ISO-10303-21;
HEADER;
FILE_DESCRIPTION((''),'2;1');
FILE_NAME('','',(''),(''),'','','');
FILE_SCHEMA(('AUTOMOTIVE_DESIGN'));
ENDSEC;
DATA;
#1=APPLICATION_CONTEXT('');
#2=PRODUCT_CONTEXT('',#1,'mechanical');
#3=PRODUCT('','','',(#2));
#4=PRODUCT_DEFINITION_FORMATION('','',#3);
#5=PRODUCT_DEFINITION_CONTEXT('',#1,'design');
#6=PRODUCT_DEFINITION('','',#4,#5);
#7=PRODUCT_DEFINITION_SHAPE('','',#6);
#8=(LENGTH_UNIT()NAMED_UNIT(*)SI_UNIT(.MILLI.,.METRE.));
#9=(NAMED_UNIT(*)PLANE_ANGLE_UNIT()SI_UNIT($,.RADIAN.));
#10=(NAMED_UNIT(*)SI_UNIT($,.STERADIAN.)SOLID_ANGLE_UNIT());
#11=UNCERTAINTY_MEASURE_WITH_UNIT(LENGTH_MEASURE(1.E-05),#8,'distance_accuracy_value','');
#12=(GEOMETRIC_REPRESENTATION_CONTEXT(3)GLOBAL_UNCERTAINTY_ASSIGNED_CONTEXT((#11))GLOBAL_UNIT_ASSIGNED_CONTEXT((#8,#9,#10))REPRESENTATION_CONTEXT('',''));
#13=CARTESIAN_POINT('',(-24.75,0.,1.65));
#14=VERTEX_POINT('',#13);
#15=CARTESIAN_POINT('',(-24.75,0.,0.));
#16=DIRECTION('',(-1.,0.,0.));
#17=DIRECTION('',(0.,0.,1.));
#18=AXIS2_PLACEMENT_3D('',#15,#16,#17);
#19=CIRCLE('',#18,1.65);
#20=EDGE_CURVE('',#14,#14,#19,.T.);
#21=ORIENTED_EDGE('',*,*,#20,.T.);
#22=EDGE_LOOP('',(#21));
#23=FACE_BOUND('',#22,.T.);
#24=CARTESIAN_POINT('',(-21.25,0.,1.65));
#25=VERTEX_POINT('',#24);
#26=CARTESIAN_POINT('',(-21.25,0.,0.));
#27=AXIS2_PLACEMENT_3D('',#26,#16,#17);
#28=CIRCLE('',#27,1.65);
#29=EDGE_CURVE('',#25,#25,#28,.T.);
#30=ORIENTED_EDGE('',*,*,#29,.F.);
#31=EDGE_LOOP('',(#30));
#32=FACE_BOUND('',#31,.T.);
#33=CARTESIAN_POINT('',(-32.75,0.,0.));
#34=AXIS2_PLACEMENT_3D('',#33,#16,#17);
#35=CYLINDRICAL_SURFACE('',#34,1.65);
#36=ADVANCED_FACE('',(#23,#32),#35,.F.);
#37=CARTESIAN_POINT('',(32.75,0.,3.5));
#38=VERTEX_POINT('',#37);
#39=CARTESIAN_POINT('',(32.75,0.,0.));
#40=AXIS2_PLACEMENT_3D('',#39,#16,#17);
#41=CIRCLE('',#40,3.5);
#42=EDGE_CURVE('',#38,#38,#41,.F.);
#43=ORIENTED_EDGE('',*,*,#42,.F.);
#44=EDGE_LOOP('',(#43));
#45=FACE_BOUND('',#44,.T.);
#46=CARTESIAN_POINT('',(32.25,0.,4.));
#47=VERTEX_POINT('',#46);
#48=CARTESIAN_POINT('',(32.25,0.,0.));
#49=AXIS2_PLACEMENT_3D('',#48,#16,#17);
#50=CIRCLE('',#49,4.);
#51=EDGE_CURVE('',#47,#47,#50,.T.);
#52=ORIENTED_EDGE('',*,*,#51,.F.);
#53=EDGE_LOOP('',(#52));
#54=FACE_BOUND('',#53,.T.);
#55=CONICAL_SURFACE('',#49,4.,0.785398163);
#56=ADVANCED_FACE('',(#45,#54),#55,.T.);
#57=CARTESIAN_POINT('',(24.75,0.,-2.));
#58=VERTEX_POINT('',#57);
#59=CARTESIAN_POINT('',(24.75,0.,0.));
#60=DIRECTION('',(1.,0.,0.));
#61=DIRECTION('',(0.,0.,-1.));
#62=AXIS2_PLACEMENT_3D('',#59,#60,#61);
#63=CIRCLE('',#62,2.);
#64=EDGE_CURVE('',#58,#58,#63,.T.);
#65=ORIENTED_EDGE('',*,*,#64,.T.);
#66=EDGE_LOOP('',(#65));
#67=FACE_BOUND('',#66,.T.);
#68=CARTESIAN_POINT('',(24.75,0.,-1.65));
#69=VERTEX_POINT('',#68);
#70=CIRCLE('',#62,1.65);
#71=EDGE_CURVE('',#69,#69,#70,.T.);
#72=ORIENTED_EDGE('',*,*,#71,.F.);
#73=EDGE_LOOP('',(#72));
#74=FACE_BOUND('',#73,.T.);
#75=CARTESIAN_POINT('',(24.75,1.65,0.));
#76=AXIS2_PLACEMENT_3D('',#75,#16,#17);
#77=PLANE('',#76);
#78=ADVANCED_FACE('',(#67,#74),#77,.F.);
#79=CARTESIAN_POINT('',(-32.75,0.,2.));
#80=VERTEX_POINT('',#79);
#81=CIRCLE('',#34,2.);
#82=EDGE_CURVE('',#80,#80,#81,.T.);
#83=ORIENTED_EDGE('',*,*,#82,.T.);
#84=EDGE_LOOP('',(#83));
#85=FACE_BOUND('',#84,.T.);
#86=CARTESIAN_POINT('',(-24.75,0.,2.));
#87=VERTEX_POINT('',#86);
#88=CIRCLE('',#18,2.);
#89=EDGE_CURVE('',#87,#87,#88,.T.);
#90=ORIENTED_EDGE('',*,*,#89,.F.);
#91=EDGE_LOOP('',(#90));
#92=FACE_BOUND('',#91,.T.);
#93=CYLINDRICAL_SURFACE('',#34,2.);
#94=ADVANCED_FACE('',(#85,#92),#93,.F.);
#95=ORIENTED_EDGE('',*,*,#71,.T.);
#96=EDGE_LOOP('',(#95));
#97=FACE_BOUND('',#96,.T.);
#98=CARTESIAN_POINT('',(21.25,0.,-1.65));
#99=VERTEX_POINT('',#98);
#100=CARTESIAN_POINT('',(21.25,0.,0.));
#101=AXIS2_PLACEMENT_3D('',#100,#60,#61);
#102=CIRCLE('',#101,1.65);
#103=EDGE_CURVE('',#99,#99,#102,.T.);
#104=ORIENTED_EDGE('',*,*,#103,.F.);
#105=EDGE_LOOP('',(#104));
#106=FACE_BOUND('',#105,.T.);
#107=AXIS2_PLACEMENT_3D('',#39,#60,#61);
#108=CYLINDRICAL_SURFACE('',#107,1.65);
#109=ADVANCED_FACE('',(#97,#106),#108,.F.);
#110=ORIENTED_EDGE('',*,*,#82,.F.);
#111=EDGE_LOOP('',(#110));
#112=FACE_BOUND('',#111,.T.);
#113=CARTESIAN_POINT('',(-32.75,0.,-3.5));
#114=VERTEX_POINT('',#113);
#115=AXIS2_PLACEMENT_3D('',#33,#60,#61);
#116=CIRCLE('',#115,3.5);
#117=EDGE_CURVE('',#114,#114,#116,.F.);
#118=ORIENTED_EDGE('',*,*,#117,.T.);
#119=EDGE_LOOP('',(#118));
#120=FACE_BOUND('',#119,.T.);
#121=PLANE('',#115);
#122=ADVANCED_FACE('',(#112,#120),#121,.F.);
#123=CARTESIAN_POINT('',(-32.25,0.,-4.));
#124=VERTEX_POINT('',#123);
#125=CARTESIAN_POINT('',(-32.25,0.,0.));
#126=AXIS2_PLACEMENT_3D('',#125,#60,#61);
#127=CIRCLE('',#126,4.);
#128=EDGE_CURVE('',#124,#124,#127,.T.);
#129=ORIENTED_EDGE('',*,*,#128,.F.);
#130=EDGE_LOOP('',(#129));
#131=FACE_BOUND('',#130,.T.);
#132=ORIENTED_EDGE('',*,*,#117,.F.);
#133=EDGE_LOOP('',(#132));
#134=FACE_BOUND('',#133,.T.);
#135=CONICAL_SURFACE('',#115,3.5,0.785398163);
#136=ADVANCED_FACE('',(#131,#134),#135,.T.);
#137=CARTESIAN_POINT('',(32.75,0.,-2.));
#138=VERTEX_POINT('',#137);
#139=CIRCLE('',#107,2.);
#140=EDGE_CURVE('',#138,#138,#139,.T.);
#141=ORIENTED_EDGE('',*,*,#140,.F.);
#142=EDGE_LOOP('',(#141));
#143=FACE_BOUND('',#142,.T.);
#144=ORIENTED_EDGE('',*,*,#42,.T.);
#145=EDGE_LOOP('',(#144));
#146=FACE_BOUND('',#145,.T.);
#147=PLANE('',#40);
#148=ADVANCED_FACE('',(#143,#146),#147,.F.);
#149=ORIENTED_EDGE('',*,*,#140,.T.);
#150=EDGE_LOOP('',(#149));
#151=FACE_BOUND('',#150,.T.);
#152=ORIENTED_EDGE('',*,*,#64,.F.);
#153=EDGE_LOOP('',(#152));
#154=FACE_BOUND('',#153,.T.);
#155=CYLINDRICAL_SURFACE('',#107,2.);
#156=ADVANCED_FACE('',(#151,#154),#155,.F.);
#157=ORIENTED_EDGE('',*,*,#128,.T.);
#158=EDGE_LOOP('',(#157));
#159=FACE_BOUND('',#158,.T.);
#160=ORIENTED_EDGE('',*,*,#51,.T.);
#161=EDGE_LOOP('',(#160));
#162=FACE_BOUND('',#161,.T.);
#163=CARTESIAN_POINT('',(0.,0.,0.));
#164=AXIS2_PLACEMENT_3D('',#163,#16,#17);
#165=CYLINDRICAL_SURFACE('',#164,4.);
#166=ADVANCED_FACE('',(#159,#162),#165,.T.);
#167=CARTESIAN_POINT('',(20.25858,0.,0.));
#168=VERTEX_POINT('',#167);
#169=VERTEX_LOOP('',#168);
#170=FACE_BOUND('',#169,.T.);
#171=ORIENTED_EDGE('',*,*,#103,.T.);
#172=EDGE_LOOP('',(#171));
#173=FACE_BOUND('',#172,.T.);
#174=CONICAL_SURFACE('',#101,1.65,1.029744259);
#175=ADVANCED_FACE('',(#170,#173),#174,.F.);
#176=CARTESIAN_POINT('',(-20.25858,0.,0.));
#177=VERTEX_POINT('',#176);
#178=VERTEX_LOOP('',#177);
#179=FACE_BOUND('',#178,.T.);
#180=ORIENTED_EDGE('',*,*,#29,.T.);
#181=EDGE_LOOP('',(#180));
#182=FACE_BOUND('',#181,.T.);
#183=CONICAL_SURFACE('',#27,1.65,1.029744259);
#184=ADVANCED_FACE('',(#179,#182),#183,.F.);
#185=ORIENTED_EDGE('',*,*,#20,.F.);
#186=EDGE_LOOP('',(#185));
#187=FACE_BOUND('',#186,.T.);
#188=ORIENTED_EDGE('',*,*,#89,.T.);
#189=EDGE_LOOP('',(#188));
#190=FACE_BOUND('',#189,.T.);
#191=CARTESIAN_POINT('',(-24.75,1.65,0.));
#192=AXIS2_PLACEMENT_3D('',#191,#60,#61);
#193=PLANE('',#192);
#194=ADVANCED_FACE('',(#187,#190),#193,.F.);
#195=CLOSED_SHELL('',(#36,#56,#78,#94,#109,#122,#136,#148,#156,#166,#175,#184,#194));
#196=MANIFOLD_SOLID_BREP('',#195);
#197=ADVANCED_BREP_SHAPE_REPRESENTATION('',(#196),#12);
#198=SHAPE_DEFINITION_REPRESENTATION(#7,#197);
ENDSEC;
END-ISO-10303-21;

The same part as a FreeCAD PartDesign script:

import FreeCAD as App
import Part
import Sketcher
from FreeCAD import Vector
Q = App.Units.Quantity


def edges_at(feature, points):
    """Names of the edges that pass closest to the given points."""
    edges = feature.Shape.Edges
    near = lambda p: min(range(len(edges)), key=lambda i: edges[i].distToShape(Part.Vertex(*p))[0])
    return sorted({f"Edge{near(p) + 1}" for p in points})


def add_polygon(sketch, points):
    """Adds a closed chain of lines whose ends are joined by coincident constraints."""
    first, n = sketch.GeometryCount, len(points)
    for a, b in zip(points, points[1:] + points[:1]):
        sketch.addGeometry(Part.LineSegment(App.Vector(*a, 0), App.Vector(*b, 0)), False)
    for i in range(n):
        sketch.addConstraint(Sketcher.Constraint("Coincident", first + i, 2, first + (i + 1) % n, 1))

doc = App.newDocument("Part")
body = doc.addObject("PartDesign::Body", "Body")

# Sketch on XY plane
sketch1 = body.newObject("Sketcher::SketchObject", "Sketch")
sketch1.AttachmentSupport = (doc.getObject("XY_Plane"), [""])
sketch1.MapMode = "FlatFace"
add_polygon(sketch1, [(-32.8, 4), (-32.8, 0), (32.8, 0), (32.8, 4)])  # lines 0-3
sketch1.addConstraint([
    Sketcher.Constraint("Vertical", 0),
    Sketcher.Constraint("Horizontal", 1),
    Sketcher.Constraint("Vertical", 2),
    Sketcher.Constraint("Horizontal", 3),
    Sketcher.Constraint("Symmetric", 0, 2, 1, 2, -1, 1),
    Sketcher.Constraint("DistanceY", 0, 2, 0, 1, Q("4 mm")),
    Sketcher.Constraint("DistanceX", 1, 1, 1, 2, Q("65.5 mm")),
])
revolution = body.newObject("PartDesign::Revolution", "Revolution")
revolution.Profile = sketch1
revolution.ReferenceAxis = (sketch1, ["H_Axis"])
revolution.Angle = 360

# Sketch on YZ plane
sketch2 = body.newObject("Sketcher::SketchObject", "Sketch001")
sketch2.AttachmentSupport = (doc.getObject("YZ_Plane"), [""])
sketch2.MapMode = "FlatFace"
sketch2.AttachmentOffset = App.Placement(Vector(0, 0, 32.75), App.Rotation())
sketch2.addGeometry(Part.Circle(Vector(0, 0, 0), Vector(0, 0, 1), 1.6), False)
sketch2.addConstraint([
    Sketcher.Constraint("Coincident", 0, 3, -1, 1),
    Sketcher.Constraint("Diameter", 0, Q("3.3 mm")),
])
doc.recompute()
hole = body.newObject("PartDesign::Hole", "Hole")
hole.Profile = sketch2
hole.ThreadType = "None"
hole.Diameter = 3.3
hole.DepthType = "Dimension"
hole.Depth = 11.5
hole.DrillPoint = "Angled"
hole.DrillPointAngle = 118
hole.HoleCutType = "Counterbore"
hole.HoleCutDiameter = 4
hole.HoleCutDepth = 8

# Sketch on YZ plane
sketch3 = body.newObject("Sketcher::SketchObject", "Sketch002")
sketch3.AttachmentSupport = (doc.getObject("YZ_Plane"), [""])
sketch3.MapMode = "FlatFace"
sketch3.AttachmentOffset = App.Placement(Vector(0, 0, -32.75), App.Rotation())
sketch3.addGeometry(Part.Circle(Vector(0, 0, 0), Vector(0, 0, 1), 1.6), False)
sketch3.addConstraint([
    Sketcher.Constraint("Coincident", 0, 3, -1, 1),
    Sketcher.Constraint("Diameter", 0, Q("3.3 mm")),
])
doc.recompute()
hole2 = body.newObject("PartDesign::Hole", "Hole001")
hole2.Profile = sketch3
hole2.ThreadType = "None"
hole2.Diameter = 3.3
hole2.DepthType = "Dimension"
hole2.Depth = 11.5
hole2.DrillPoint = "Angled"
hole2.DrillPointAngle = 118
hole2.HoleCutType = "Counterbore"
hole2.HoleCutDiameter = 4
hole2.HoleCutDepth = 8
hole2.Reversed = True
doc.recompute()

chamfer = body.newObject("PartDesign::Chamfer", "Chamfer")
chamfer.Base = (hole2, edges_at(hole2, [(32.75, 0, -4), (-32.75, 0, -4)]))
chamfer.Size = 0.5

doc.recompute()
